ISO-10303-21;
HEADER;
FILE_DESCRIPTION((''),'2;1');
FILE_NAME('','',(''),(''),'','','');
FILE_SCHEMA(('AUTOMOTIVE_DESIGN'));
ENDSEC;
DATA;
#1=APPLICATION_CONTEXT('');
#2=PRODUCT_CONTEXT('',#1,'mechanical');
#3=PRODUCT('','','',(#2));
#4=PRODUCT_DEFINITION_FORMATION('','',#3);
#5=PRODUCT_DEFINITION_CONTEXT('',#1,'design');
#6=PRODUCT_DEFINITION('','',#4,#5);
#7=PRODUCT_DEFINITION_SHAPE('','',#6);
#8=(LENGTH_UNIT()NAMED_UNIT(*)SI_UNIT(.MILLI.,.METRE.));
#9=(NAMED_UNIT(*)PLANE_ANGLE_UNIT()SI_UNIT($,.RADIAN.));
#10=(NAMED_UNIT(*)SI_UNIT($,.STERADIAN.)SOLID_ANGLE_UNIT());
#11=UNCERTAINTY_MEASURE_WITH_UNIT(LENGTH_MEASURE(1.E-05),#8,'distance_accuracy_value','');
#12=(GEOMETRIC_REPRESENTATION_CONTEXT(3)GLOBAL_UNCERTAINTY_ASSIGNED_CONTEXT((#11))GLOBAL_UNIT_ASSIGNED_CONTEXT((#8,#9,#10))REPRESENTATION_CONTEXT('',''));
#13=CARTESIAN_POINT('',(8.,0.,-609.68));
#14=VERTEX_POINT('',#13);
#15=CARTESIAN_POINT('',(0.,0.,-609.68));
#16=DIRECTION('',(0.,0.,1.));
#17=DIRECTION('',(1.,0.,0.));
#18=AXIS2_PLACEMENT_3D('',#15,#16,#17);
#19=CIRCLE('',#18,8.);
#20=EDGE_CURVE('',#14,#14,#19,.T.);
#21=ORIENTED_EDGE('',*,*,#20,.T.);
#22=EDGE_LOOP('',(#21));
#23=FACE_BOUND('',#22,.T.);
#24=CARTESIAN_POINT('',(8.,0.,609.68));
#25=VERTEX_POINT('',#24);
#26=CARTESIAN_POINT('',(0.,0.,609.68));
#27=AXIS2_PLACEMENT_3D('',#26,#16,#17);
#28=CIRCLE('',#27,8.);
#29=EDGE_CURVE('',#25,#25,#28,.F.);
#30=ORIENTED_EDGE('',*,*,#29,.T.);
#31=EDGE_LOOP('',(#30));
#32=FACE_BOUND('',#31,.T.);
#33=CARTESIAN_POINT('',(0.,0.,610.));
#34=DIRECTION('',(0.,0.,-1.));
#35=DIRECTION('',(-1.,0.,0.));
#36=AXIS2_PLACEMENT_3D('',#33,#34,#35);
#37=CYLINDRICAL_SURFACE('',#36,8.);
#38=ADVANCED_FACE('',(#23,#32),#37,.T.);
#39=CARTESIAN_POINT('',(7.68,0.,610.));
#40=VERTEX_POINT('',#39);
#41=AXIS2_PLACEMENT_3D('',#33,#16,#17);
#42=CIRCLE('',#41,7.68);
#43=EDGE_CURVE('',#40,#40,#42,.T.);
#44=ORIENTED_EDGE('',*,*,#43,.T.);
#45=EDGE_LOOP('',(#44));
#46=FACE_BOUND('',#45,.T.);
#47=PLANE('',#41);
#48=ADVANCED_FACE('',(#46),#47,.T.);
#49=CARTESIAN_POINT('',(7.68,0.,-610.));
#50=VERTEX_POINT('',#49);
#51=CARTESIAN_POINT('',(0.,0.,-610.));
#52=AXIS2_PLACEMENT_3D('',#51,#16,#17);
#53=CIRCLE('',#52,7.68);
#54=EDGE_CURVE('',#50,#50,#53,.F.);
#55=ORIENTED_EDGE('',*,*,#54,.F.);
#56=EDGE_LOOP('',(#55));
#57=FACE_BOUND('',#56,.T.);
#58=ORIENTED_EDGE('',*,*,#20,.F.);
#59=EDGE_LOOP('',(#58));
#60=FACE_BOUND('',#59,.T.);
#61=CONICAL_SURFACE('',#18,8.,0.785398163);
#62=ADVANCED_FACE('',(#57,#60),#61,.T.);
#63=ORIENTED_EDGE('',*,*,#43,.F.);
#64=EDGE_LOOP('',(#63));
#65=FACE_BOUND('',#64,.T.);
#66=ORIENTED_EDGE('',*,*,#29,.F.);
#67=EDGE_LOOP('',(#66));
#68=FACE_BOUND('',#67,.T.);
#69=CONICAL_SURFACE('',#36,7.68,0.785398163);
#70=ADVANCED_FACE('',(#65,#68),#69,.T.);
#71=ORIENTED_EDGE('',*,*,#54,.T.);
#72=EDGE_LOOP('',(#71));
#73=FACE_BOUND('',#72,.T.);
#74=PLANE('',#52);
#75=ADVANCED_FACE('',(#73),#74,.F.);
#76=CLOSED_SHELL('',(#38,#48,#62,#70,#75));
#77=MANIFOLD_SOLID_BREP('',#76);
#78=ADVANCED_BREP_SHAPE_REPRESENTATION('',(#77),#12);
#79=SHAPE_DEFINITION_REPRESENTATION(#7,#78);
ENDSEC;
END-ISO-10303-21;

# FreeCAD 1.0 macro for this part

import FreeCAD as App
import Part
import Sketcher


def edges_at(feature, points):
    """Names of the edges that pass closest to the given points."""
    edges = feature.Shape.Edges
    near = lambda p: min(range(len(edges)), key=lambda i: edges[i].distToShape(Part.Vertex(*p))[0])
    return sorted({f"Edge{near(p) + 1}" for p in points})

doc = App.newDocument("Part")
body = doc.addObject("PartDesign::Body", "Body")

# Sketch on XY plane
sketch1 = doc.addObject("Sketcher::SketchObject", "Sketch")
body.addObject(sketch1)
sketch1.AttachmentSupport = (doc.XY_Plane, [""])
sketch1.MapMode = "FlatFace"
sketch1.addGeometry(Part.Circle(App.Vector(0, 0, 0), App.Vector(0, 0, 1), 8), False)
sketch1.addConstraint([
    Sketcher.Constraint("Coincident", 0, 3, -1, 1),
    Sketcher.Constraint("Diameter", 0, 16.0),
])
pad1 = doc.addObject("PartDesign::Pad", "Pad")
body.addObject(pad1)
pad1.Profile = sketch1
pad1.Type = "TwoLengths"
pad1.Length = 610
pad1.Length2 = 610
doc.recompute()

chamfer = doc.addObject("PartDesign::Chamfer", "Chamfer")
body.addObject(chamfer)
chamfer.Base = (pad1, edges_at(pad1, [(-8, 0, -610), (-8, 0, 610)]))
chamfer.Size = 0.32

doc.recompute()
